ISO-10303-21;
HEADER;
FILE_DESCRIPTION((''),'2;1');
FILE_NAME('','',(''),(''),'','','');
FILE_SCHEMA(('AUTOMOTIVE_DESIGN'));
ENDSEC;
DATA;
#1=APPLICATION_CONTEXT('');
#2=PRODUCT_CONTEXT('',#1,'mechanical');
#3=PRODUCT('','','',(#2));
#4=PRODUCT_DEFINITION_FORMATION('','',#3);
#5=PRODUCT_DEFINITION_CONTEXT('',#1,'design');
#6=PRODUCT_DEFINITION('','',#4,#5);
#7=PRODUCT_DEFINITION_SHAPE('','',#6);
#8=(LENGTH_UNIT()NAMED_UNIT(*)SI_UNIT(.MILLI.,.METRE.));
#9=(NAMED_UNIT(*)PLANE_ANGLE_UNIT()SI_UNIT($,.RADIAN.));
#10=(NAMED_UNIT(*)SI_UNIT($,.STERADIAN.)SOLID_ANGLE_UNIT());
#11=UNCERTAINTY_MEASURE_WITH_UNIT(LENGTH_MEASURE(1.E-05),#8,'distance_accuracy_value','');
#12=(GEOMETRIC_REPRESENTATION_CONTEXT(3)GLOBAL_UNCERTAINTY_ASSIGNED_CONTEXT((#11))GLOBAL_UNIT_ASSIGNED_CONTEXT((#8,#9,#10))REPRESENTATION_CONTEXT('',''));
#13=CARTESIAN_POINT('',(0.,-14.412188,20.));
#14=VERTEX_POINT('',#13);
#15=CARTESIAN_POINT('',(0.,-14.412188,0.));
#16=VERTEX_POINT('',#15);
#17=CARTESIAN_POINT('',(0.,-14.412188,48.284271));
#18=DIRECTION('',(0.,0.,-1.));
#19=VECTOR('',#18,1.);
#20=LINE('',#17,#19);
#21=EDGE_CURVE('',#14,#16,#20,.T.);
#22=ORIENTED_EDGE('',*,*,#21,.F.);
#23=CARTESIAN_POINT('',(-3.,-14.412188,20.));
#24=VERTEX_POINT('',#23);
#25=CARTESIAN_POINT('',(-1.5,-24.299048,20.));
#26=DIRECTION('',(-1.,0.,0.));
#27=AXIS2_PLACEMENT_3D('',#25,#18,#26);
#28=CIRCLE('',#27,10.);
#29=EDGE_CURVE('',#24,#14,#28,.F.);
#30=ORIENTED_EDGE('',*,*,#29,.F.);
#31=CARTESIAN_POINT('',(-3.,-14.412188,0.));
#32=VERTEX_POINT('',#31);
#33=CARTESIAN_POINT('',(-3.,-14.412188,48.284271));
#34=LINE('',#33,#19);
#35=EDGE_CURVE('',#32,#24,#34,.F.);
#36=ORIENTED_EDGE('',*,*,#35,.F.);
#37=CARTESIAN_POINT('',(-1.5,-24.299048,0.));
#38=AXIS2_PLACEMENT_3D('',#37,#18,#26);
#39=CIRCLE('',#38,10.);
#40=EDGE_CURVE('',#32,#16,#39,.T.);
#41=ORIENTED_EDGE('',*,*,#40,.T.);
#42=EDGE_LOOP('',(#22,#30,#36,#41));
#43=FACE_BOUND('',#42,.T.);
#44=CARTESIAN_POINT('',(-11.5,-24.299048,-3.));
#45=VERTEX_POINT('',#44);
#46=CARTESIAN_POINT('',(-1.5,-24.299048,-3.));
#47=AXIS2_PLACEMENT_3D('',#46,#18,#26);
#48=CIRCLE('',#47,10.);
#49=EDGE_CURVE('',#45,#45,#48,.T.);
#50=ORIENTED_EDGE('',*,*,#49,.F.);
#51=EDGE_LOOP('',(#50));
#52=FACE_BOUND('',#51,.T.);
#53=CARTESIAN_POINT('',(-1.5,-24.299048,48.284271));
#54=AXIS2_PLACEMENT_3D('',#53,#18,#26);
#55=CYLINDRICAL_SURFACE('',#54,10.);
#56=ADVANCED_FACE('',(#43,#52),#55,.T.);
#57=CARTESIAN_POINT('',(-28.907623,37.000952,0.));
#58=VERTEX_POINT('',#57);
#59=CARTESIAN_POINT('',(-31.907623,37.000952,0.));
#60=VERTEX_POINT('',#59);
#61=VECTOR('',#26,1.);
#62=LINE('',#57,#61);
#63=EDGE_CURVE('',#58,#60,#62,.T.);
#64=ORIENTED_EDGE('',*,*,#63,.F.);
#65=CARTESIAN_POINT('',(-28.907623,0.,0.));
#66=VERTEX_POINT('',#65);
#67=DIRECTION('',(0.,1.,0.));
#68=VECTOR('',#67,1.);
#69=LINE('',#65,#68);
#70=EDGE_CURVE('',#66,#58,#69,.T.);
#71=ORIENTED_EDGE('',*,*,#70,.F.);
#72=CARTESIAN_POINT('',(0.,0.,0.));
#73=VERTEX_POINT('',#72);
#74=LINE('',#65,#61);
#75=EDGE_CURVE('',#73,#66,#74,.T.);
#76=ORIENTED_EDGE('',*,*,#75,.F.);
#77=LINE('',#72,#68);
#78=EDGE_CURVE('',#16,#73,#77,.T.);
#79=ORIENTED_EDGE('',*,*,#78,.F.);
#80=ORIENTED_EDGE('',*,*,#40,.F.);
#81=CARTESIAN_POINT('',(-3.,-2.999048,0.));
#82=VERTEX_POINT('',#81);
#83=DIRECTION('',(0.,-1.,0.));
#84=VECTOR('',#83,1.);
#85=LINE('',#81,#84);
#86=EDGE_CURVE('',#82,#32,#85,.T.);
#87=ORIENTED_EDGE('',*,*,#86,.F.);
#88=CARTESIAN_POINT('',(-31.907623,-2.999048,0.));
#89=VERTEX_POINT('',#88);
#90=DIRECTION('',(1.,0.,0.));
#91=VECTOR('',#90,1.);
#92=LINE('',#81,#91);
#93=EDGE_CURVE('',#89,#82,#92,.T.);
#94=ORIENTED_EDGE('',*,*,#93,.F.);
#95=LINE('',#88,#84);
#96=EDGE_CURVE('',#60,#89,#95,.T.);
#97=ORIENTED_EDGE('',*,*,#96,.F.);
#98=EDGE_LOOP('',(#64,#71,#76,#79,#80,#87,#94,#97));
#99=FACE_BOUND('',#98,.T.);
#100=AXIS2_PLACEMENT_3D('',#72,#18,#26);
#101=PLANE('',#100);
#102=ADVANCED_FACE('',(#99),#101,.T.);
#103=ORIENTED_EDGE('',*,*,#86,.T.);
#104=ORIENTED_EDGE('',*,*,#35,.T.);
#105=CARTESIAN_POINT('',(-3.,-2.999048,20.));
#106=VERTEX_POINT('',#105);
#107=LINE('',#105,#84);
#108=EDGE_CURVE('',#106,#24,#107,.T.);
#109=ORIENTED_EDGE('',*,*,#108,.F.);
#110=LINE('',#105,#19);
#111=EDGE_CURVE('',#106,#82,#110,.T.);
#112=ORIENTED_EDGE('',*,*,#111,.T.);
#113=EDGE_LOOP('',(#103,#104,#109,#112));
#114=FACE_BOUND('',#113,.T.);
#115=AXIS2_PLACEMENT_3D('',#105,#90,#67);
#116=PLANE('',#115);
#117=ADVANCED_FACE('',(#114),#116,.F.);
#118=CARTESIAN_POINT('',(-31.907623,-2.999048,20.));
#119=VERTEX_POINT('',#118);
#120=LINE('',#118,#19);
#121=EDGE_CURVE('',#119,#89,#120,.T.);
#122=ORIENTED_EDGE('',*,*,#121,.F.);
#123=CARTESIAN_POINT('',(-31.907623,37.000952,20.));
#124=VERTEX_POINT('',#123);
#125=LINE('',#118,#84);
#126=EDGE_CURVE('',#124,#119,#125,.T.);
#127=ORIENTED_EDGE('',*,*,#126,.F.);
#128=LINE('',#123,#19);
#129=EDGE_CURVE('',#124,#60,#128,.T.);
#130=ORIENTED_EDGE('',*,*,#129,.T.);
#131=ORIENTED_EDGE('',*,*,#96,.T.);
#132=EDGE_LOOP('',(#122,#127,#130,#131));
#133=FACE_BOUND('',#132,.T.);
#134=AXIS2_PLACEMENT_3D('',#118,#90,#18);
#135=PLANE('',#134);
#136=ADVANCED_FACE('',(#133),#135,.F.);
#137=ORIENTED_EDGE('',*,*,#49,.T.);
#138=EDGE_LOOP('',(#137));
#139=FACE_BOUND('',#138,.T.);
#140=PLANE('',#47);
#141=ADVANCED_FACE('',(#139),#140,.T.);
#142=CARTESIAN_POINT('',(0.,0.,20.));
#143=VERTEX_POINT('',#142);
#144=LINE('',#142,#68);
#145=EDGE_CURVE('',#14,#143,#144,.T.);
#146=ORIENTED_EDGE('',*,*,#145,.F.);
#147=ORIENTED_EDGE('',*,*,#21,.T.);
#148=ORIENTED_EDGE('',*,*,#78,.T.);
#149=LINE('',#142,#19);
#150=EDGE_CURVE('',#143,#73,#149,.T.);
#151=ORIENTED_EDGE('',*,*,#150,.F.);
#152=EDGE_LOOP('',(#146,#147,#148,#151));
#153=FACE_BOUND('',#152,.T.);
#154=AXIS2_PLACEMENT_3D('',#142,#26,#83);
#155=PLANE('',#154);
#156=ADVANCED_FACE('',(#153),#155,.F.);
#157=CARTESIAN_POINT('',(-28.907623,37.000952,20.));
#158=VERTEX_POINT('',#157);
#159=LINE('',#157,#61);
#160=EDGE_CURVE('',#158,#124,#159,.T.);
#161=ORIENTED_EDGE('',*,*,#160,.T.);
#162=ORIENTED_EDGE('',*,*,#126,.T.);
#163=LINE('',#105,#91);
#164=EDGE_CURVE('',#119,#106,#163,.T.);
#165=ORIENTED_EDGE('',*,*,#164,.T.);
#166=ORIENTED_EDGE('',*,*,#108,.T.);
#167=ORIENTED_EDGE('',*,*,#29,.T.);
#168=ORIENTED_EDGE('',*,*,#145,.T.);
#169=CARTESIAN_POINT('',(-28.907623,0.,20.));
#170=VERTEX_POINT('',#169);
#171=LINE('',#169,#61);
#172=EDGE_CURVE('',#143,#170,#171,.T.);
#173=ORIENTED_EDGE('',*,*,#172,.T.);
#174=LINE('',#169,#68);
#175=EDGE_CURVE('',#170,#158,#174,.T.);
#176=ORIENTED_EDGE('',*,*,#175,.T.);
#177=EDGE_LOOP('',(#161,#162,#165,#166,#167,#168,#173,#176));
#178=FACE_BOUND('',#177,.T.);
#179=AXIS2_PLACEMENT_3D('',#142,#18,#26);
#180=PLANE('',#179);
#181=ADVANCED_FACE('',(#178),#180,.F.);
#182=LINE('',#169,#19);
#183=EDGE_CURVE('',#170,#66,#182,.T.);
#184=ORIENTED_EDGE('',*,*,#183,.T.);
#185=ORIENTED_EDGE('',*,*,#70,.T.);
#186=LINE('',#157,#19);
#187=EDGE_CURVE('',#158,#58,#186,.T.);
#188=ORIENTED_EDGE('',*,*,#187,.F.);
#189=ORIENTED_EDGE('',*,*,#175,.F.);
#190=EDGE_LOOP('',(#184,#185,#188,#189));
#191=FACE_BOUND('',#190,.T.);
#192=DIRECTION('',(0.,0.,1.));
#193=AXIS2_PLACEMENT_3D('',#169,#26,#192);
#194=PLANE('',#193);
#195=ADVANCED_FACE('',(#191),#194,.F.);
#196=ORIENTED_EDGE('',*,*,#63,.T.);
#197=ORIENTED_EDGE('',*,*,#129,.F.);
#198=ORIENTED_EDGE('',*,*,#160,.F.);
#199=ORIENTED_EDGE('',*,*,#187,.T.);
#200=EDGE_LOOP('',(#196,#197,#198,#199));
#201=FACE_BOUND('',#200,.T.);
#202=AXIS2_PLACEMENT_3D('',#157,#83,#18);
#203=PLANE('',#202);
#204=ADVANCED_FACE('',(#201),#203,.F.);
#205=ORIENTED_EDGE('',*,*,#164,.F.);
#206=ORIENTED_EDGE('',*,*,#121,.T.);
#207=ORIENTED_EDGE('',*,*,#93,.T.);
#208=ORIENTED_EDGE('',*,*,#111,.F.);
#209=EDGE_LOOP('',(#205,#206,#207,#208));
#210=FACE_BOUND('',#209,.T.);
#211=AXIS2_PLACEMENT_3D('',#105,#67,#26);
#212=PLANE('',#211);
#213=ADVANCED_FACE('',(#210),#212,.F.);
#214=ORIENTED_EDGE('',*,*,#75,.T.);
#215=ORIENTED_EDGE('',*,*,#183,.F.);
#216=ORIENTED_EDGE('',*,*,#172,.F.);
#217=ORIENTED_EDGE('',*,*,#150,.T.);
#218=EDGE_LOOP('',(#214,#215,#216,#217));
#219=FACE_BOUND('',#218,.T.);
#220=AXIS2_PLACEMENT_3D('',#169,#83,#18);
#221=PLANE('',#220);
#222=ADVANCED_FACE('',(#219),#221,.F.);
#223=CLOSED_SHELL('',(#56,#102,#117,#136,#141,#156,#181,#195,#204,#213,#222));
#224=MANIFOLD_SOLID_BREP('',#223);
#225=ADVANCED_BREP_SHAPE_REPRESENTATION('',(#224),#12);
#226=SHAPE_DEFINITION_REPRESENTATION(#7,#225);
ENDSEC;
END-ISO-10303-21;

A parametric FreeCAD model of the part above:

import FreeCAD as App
import Part
import Sketcher

V = App.Vector
Q = App.Units.Quantity


def add_polygon(sketch, points):
    """Adds a closed chain of lines whose ends are joined by coincident constraints."""
    first, n = sketch.GeometryCount, len(points)
    for a, b in zip(points, points[1:] + points[:1]):
        sketch.addGeometry(Part.LineSegment(App.Vector(*a, 0), App.Vector(*b, 0)), False)
    for i in range(n):
        sketch.addConstraint(Sketcher.Constraint("Coincident", first + i, 2, first + (i + 1) % n, 1))

doc = App.newDocument("Part")
body = doc.addObject("PartDesign::Body", "Body")

# Sketch on XY plane
sketch1 = body.newObject("Sketcher::SketchObject", "Sketch")
sketch1.AttachmentSupport = (doc.getObject("XY_Plane"), [""])
sketch1.MapMode = "FlatFace"
add_polygon(sketch1, [(0, -28), (0, 0), (-28.9, 0), (-28.9, 37), (-31.9, 37), (-31.9, -3), (-3, -3), (-3, -28)])  # lines 0-7
sketch1.addConstraint(Sketcher.Constraint("Vertical", 0))
sketch1.addConstraint(Sketcher.Constraint("Horizontal", 1))
sketch1.addConstraint(Sketcher.Constraint("Vertical", 2))
sketch1.addConstraint(Sketcher.Constraint("Horizontal", 3))
sketch1.addConstraint(Sketcher.Constraint("Vertical", 4))
sketch1.addConstraint(Sketcher.Constraint("Horizontal", 5))
sketch1.addConstraint(Sketcher.Constraint("Vertical", 6))
sketch1.addConstraint(Sketcher.Constraint("Horizontal", 7))
sketch1.addConstraint(Sketcher.Constraint("Coincident", 0, 2, -1, 1))
sketch1.addConstraint(Sketcher.Constraint("Equal", 1, 5))
sketch1.addConstraint(Sketcher.Constraint("DistanceX", 3, 2, 3, 1, Q("3 mm")))
sketch1.addConstraint(Sketcher.Constraint("DistanceY", 4, 2, 4, 1, Q("40 mm")))
sketch1.addConstraint(Sketcher.Constraint("DistanceY", 6, 2, 6, 1, Q("25 mm")))
sketch1.addConstraint(Sketcher.Constraint("DistanceX", 1, 2, 1, 1, Q("28.907623 mm")))
sketch1.addConstraint(Sketcher.Constraint("DistanceY", 0, 1, 0, 2, Q("27.999048 mm")))
pad1 = body.newObject("PartDesign::Pad", "Pad")
pad1.Profile = sketch1
pad1.Length = 20

# Sketch on XY plane
sketch2 = body.newObject("Sketcher::SketchObject", "Sketch001")
sketch2.AttachmentSupport = (doc.getObject("XY_Plane"), [""])
sketch2.MapMode = "FlatFace"
sketch2.AttachmentOffset = App.Placement(V(0, 0, 20), App.Rotation())
sketch2.addGeometry(Part.Circle(V(-2, -24, 0), V(0, 0, 1), 10), False)
sketch2.addConstraint(Sketcher.Constraint("Diameter", 0, Q("20 mm")))
sketch2.addConstraint(Sketcher.Constraint("DistanceX", 0, 3, -1, 1, Q("1.5 mm")))
sketch2.addConstraint(Sketcher.Constraint("DistanceY", 0, 3, -1, 1, Q("24.299048 mm")))
pad2 = body.newObject("PartDesign::Pad", "Pad001")
pad2.Profile = sketch2
pad2.Length = 23
pad2.Reversed = True

doc.recompute()
